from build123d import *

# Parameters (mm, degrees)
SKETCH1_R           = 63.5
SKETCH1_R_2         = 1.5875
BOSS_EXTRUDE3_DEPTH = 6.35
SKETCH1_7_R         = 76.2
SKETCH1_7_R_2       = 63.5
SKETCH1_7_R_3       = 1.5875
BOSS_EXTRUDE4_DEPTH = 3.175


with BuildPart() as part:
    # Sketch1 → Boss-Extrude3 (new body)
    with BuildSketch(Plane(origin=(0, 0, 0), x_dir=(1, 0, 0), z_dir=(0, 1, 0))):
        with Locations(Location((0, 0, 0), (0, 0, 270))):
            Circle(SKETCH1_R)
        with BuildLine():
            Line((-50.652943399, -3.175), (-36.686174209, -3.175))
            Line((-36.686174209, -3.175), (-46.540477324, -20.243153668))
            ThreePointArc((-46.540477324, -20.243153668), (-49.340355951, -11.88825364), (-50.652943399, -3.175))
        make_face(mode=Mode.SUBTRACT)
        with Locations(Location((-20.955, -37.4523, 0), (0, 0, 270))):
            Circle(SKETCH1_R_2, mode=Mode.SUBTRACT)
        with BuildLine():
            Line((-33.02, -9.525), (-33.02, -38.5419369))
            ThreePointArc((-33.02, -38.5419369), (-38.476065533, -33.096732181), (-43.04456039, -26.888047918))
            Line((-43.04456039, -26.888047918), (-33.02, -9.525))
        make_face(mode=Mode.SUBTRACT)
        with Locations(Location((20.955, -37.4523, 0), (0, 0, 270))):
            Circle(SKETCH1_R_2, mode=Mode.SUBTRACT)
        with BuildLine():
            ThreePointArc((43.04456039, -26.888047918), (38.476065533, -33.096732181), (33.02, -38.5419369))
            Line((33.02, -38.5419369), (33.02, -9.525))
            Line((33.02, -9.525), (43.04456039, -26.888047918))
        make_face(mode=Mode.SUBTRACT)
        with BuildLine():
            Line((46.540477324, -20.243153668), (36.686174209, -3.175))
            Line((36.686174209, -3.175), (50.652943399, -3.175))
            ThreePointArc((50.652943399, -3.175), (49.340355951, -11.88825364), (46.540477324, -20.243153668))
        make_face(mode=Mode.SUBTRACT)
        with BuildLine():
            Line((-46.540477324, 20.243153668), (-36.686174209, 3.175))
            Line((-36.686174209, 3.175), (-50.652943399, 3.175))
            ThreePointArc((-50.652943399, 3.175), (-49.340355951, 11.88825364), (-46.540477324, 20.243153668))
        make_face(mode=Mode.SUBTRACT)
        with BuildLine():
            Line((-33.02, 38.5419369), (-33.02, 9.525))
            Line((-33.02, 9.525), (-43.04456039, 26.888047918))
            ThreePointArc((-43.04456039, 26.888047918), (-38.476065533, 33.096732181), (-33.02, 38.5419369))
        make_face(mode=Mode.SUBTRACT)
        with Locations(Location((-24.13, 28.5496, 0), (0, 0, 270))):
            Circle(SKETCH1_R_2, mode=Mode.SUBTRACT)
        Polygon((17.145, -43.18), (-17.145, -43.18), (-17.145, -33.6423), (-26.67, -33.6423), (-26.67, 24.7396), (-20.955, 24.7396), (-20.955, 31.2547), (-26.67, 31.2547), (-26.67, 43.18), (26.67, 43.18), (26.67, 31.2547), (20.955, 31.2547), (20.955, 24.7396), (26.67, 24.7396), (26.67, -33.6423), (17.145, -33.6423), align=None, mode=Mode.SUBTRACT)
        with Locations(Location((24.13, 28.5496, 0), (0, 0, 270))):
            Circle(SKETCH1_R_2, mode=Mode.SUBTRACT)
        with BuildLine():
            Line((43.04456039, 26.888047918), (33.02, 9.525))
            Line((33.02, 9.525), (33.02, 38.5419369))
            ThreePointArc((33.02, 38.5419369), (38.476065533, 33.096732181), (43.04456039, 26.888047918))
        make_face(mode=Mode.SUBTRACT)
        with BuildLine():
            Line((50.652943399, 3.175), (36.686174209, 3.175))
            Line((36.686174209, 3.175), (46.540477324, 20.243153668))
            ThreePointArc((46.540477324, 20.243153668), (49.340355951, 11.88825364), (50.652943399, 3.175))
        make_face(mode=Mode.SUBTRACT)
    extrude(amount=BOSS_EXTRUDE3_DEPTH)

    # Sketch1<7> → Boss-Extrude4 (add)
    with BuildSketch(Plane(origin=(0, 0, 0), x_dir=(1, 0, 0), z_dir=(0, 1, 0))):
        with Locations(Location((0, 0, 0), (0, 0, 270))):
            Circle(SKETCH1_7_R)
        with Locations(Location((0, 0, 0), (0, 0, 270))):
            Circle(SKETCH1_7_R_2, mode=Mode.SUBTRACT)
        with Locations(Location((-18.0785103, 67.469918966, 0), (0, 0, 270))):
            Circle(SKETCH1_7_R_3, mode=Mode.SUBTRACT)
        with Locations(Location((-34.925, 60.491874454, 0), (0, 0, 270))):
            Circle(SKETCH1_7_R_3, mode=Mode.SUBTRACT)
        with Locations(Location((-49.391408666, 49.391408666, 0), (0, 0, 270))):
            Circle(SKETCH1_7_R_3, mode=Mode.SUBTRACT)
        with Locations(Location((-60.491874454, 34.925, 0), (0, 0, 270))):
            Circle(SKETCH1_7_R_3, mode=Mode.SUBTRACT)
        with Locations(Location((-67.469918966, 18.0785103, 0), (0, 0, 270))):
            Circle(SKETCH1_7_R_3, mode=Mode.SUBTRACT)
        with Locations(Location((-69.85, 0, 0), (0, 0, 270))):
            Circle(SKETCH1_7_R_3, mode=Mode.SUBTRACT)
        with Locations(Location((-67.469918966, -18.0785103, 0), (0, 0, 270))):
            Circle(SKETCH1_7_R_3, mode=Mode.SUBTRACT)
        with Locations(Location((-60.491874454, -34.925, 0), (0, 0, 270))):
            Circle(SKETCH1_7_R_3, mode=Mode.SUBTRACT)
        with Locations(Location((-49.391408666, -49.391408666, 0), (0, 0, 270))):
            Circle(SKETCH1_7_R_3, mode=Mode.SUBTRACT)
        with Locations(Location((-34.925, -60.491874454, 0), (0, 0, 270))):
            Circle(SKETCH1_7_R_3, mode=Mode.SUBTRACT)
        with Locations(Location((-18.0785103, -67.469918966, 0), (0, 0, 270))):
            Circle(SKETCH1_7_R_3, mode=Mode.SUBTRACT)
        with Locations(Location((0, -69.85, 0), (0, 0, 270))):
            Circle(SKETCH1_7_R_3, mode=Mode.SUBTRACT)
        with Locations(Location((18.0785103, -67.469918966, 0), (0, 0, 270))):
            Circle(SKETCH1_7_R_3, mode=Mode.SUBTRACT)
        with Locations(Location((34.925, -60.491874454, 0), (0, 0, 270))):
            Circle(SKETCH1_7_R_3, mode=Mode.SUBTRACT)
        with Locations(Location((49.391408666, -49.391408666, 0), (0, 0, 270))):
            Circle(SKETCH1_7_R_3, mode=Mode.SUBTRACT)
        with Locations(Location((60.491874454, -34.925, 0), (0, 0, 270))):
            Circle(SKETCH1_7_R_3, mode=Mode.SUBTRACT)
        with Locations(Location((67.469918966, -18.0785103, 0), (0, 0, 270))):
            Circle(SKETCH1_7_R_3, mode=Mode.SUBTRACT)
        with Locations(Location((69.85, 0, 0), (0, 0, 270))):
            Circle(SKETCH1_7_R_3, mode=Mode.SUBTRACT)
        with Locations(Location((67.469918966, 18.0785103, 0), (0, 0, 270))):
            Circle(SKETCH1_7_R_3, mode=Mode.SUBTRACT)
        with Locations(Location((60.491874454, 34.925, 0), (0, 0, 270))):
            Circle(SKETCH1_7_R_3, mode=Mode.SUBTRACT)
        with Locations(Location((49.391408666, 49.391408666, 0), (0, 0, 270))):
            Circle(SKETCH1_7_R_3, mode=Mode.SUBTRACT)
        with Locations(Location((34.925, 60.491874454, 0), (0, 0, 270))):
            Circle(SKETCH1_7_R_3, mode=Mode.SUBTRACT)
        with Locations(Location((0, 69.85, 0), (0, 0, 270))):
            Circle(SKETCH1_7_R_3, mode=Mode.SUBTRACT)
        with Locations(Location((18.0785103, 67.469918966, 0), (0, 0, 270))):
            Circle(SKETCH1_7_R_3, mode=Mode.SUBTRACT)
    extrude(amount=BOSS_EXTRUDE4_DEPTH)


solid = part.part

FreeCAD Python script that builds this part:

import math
import FreeCAD as App
import Part
import Sketcher
from FreeCAD import Vector
Q = App.Units.Quantity


def add_polygon(sketch, points):
    """Adds a closed chain of lines whose ends are joined by coincident constraints."""
    first, n = sketch.GeometryCount, len(points)
    for a, b in zip(points, points[1:] + points[:1]):
        sketch.addGeometry(Part.LineSegment(App.Vector(*a, 0), App.Vector(*b, 0)), False)
    for i in range(n):
        sketch.addConstraint(Sketcher.Constraint("Coincident", first + i, 2, first + (i + 1) % n, 1))

doc = App.newDocument("Part")
body = doc.addObject("PartDesign::Body", "Body")

sketch1 = body.newObject("Sketcher::SketchObject", "Sketch")
sketch1.AttachmentSupport = (doc.getObject("XZ_Plane"), [""])
sketch1.MapMode = "FlatFace"
sketch1.addGeometry(Part.Circle(Vector(0, 0, 0), Vector(0, 0, 1), 63.5), False)
sketch1.addGeometry(Part.ArcOfCircle(Part.Circle(Vector(0, 0, 0), Vector(0, 0, 1), 50.8), math.radians(-148.01), math.radians(-130.59)), False)
sketch1.addGeometry(Part.LineSegment(Vector(-33, -38.5, 0), Vector(-33, -9.5, 0)), False)
sketch1.addGeometry(Part.LineSegment(Vector(-33, -9.5, 0), Vector(-43, -26.9, 0)), False)
sketch1.addGeometry(Part.ArcOfCircle(Part.Circle(Vector(0, 0, 0), Vector(0, 0, 1), 50.8), math.radians(-176.41), math.radians(-156.49)), False)
sketch1.addGeometry(Part.LineSegment(Vector(-46.5, -20.2, 0), Vector(-36.7, -3.2, 0)), False)
sketch1.addGeometry(Part.LineSegment(Vector(-36.7, -3.2, 0), Vector(-50.7, -3.2, 0)), False)
sketch1.addGeometry(Part.Circle(Vector(-24.1, -28.5, 0), Vector(0, 0, 1), 1.6), False)
sketch1.addGeometry(Part.ArcOfCircle(Part.Circle(Vector(0, 0, 0), Vector(0, 0, 1), 50.8), math.radians(156.49), math.radians(176.41)), False)
sketch1.addGeometry(Part.LineSegment(Vector(-50.7, 3.2, 0), Vector(-36.7, 3.2, 0)), False)
sketch1.addGeometry(Part.LineSegment(Vector(-36.7, 3.2, 0), Vector(-46.5, 20.2, 0)), False)
sketch1.addGeometry(Part.LineSegment(Vector(-43, 26.9, 0), Vector(-33, 9.5, 0)), False)
sketch1.addGeometry(Part.LineSegment(Vector(-33, 9.5, 0), Vector(-33, 38.5, 0)), False)
sketch1.addGeometry(Part.ArcOfCircle(Part.Circle(Vector(0, 0, 0), Vector(0, 0, 1), 50.8), math.radians(130.59), math.radians(148.01)), False)
add_polygon(sketch1, [(17.1, 33.6), (17.1, 43.2), (-17.1, 43.2), (-17.1, 33.6), (-26.7, 33.6), (-26.7, -24.7), (-21, -24.7), (-21, -31.3), (-26.7, -31.3), (-26.7, -43.2), (26.7, -43.2), (26.7, -31.3), (21, -31.3), (21, -24.7), (26.7, -24.7), (26.7, 33.6)])
sketch1.addGeometry(Part.Circle(Vector(-21, 37.5, 0), Vector(0, 0, 1), 1.6), False)
sketch1.addGeometry(Part.Circle(Vector(24.1, -28.5, 0), Vector(0, 0, 1), 1.6), False)
sketch1.addGeometry(Part.ArcOfCircle(Part.Circle(Vector(0, 0, 0), Vector(0, 0, 1), 50.8), math.radians(-49.41), math.radians(-31.99)), False)
sketch1.addGeometry(Part.LineSegment(Vector(43, -26.9, 0), Vector(33, -9.5, 0)), False)
sketch1.addGeometry(Part.LineSegment(Vector(33, -9.5, 0), Vector(33, -38.5, 0)), False)
sketch1.addGeometry(Part.ArcOfCircle(Part.Circle(Vector(0, 0, 0), Vector(0, 0, 1), 50.8), math.radians(-23.51), math.radians(-3.59)), False)
sketch1.addGeometry(Part.LineSegment(Vector(50.7, -3.2, 0), Vector(36.7, -3.2, 0)), False)
sketch1.addGeometry(Part.LineSegment(Vector(36.7, -3.2, 0), Vector(46.5, -20.2, 0)), False)
sketch1.addGeometry(Part.Circle(Vector(21, 37.5, 0), Vector(0, 0, 1), 1.6), False)
sketch1.addGeometry(Part.ArcOfCircle(Part.Circle(Vector(0, 0, 0), Vector(0, 0, 1), 50.8), math.radians(3.59), math.radians(23.51)), False)
sketch1.addGeometry(Part.LineSegment(Vector(46.5, 20.2, 0), Vector(36.7, 3.2, 0)), False)
sketch1.addGeometry(Part.LineSegment(Vector(36.7, 3.2, 0), Vector(50.7, 3.2, 0)), False)
sketch1.addGeometry(Part.LineSegment(Vector(33, 9.5, 0), Vector(43, 26.9, 0)), False)
sketch1.addGeometry(Part.ArcOfCircle(Part.Circle(Vector(0, 0, 0), Vector(0, 0, 1), 50.8), math.radians(31.99), math.radians(49.41)), False)
sketch1.addGeometry(Part.LineSegment(Vector(33, 38.5, 0), Vector(33, 9.5, 0)), False)
sketch1.addConstraint([
    Sketcher.Constraint("Coincident", 1, 2, 2, 1),
    Sketcher.Constraint("Coincident", 2, 2, 3, 1),
    Sketcher.Constraint("Coincident", 3, 2, 1, 1),
    Sketcher.Constraint("Coincident", 4, 2, 5, 1),
    Sketcher.Constraint("Coincident", 5, 2, 6, 1),
    Sketcher.Constraint("Coincident", 6, 2, 4, 1),
    Sketcher.Constraint("Coincident", 8, 2, 9, 1),
    Sketcher.Constraint("Coincident", 9, 2, 10, 1),
    Sketcher.Constraint("Coincident", 10, 2, 8, 1),
    Sketcher.Constraint("Coincident", 11, 2, 12, 1),
    Sketcher.Constraint("Coincident", 12, 2, 13, 1),
    Sketcher.Constraint("Coincident", 13, 2, 11, 1),
    Sketcher.Constraint("Coincident", 32, 2, 33, 1),
    Sketcher.Constraint("Coincident", 33, 2, 34, 1),
    Sketcher.Constraint("Coincident", 34, 2, 32, 1),
    Sketcher.Constraint("Coincident", 35, 2, 36, 1),
    Sketcher.Constraint("Coincident", 36, 2, 37, 1),
    Sketcher.Constraint("Coincident", 37, 2, 35, 1),
    Sketcher.Constraint("Coincident", 39, 2, 40, 1),
    Sketcher.Constraint("Coincident", 40, 2, 41, 1),
    Sketcher.Constraint("Coincident", 41, 2, 39, 1),
    Sketcher.Constraint("Coincident", 42, 2, 43, 1),
    Sketcher.Constraint("Coincident", 43, 2, 44, 1),
    Sketcher.Constraint("Coincident", 44, 2, 42, 1),
    Sketcher.Constraint("Vertical", 2),
    Sketcher.Constraint("Horizontal", 6),
    Sketcher.Constraint("Horizontal", 9),
    Sketcher.Constraint("Vertical", 12),
    Sketcher.Constraint("Vertical", 14),
    Sketcher.Constraint("Horizontal", 15),
    Sketcher.Constraint("Vertical", 16),
    Sketcher.Constraint("Horizontal", 17),
    Sketcher.Constraint("Vertical", 18),
    Sketcher.Constraint("Horizontal", 19),
    Sketcher.Constraint("Vertical", 20),
    Sketcher.Constraint("Horizontal", 21),
    Sketcher.Constraint("Vertical", 22),
    Sketcher.Constraint("Horizontal", 23),
    Sketcher.Constraint("Vertical", 24),
    Sketcher.Constraint("Horizontal", 25),
    Sketcher.Constraint("Vertical", 26),
    Sketcher.Constraint("Horizontal", 27),
    Sketcher.Constraint("Vertical", 28),
    Sketcher.Constraint("Horizontal", 29),
    Sketcher.Constraint("Vertical", 34),
    Sketcher.Constraint("Horizontal", 36),
    Sketcher.Constraint("Horizontal", 41),
    Sketcher.Constraint("Vertical", 44),
    Sketcher.Constraint("Coincident", 0, 3, -1, 1),
    Sketcher.Constraint("Coincident", 1, 3, -1, 1),
    Sketcher.Constraint("Coincident", 4, 3, -1, 1),
    Sketcher.Constraint("Coincident", 8, 3, -1, 1),
    Sketcher.Constraint("Coincident", 13, 3, -1, 1),
    Sketcher.Constraint("Coincident", 32, 3, -1, 1),
    Sketcher.Constraint("Coincident", 35, 3, -1, 1),
    Sketcher.Constraint("Coincident", 39, 3, -1, 1),
    Sketcher.Constraint("Coincident", 43, 3, -1, 1),
    Sketcher.Constraint("Equal", 1, 4),
    Sketcher.Constraint("Equal", 4, 8),
    Sketcher.Constraint("Equal", 8, 13),
    Sketcher.Constraint("Equal", 7, 30),
    Sketcher.Constraint("Equal", 30, 31),
    Sketcher.Constraint("Equal", 13, 32),
    Sketcher.Constraint("Equal", 32, 35),
    Sketcher.Constraint("Equal", 31, 38),
    Sketcher.Constraint("Equal", 35, 39),
    Sketcher.Constraint("Equal", 39, 43),
    Sketcher.Constraint("Symmetric", 11, 2, 33, 2, -1, 1),
    Sketcher.Constraint("Symmetric", 9, 2, 36, 2, -1, 1),
    Sketcher.Constraint("Symmetric", 5, 2, 40, 2, -1, 1),
    Sketcher.Constraint("Symmetric", 2, 2, 44, 2, -1, 1),
    Sketcher.Constraint("Symmetric", 7, 3, 31, 3, -2),
    Sketcher.Constraint("Symmetric", 30, 3, 38, 3, -2),
    Sketcher.Constraint("Symmetric", 21, 2, 24, 2, -2),
    Sketcher.Constraint("Symmetric", 19, 2, 26, 2, -2),
    Sketcher.Constraint("Symmetric", 17, 2, 28, 2, -2),
    Sketcher.Constraint("Symmetric", 2, 2, 33, 2, -2),
    Sketcher.Constraint("Symmetric", 5, 2, 36, 2, -2),
    Sketcher.Constraint("Parallel", 3, 5),
    Sketcher.Constraint("Parallel", 10, 11),
    Sketcher.Constraint("Parallel", 11, 33),
    Sketcher.Constraint("Parallel", 33, 37),
    Sketcher.Constraint("Parallel", 5, 40),
    Sketcher.Constraint("Parallel", 40, 42),
    Sketcher.Constraint("Horizontal", 3, 2, 32, 2),
    Sketcher.Constraint("Vertical", 30, 3, 19, 2),
    Sketcher.Constraint("Vertical", 18, 2, 21, 2),
    Sketcher.Constraint("Equal", 17, 29),
    Sketcher.Constraint("Diameter", 0, Q("5 in")),
    Sketcher.Constraint("Diameter", 7, Q("0.125 in")),
    Sketcher.Constraint("DistanceX", 23, 1, 23, 2, Q("2.1 in")),
    Sketcher.Constraint("Angle", 3, Q("-120 deg")),
    Sketcher.Constraint("DistanceX", 15, 2, 15, 1, Q("1.35 in")),
    Sketcher.Constraint("DistanceX", 1, 2, -1, 1, Q("1.3 in")),
    Sketcher.Constraint("DistanceY", -1, 1, 14, 2, Q("1.7 in")),
    Sketcher.Constraint("DistanceY", 22, 2, -1, 1, Q("1.7 in")),
    Sketcher.Constraint("DistanceY", 2, 2, 8, 2, Q("0.5 in")),
    Sketcher.Constraint("DistanceX", 30, 3, 14, 2, Q("1.5 in")),
    Sketcher.Constraint("DistanceX", 18, 2, 7, 3, Q("0.1 in")),
    Sketcher.Constraint("DistanceY", 2, 2, 5, 2, Q("0.25 in")),
    Sketcher.Constraint("DistanceY", 16, 2, 30, 3, Q("0.15 in")),
    Sketcher.Constraint("DistanceY", 7, 3, 18, 2, Q("0.15 in")),
    Sketcher.Constraint("DistanceY", 14, 1, 14, 2, Q("0.3755 in")),
    Sketcher.Constraint("DistanceY", 18, 2, 18, 1, Q("2.2985 in")),
    Sketcher.Constraint("DistanceY", 20, 2, 20, 1, Q("0.2565 in")),
    Sketcher.Constraint("Radius", 1, 50.752353),
    Sketcher.Constraint("DistanceX", 6, 2, 6, 1, 13.966769),
])
pad1 = body.newObject("PartDesign::Pad", "Pad")
pad1.Profile = sketch1
pad1.Length = Q("0.25 in")
pad1.Reversed = True

sketch2 = body.newObject("Sketcher::SketchObject", "Sketch001")
sketch2.AttachmentSupport = (doc.getObject("XZ_Plane"), [""])
sketch2.MapMode = "FlatFace"
sketch2.addGeometry([
    Part.Circle(Vector(0, 0, 0), Vector(0, 0, 1), 76.2),
    Part.Circle(Vector(-49.4, -49.4, 0), Vector(0, 0, 1), 1.6),
    Part.Circle(Vector(-67.5, -18.1, 0), Vector(0, 0, 1), 1.6),
    Part.Circle(Vector(-60.5, -34.9, 0), Vector(0, 0, 1), 1.6),
    Part.Circle(Vector(-34.9, -60.5, 0), Vector(0, 0, 1), 1.6),
    Part.Circle(Vector(-18.1, -67.5, 0), Vector(0, 0, 1), 1.6),
    Part.Circle(Vector(0, -69.8, 0), Vector(0, 0, 1), 1.6),
    Part.Circle(Vector(-69.8, 0, 0), Vector(0, 0, 1), 1.6),
    Part.Circle(Vector(-67.5, 18.1, 0), Vector(0, 0, 1), 1.6),
    Part.Circle(Vector(-60.5, 34.9, 0), Vector(0, 0, 1), 1.6),
    Part.Circle(Vector(-49.4, 49.4, 0), Vector(0, 0, 1), 1.6),
    Part.Circle(Vector(-34.9, 60.5, 0), Vector(0, 0, 1), 1.6),
    Part.Circle(Vector(-18.1, 67.5, 0), Vector(0, 0, 1), 1.6),
    Part.Circle(Vector(18.1, -67.5, 0), Vector(0, 0, 1), 1.6),
    Part.Circle(Vector(34.9, -60.5, 0), Vector(0, 0, 1), 1.6),
    Part.Circle(Vector(49.4, -49.4, 0), Vector(0, 0, 1), 1.6),
    Part.Circle(Vector(60.5, -34.9, 0), Vector(0, 0, 1), 1.6),
    Part.Circle(Vector(67.5, -18.1, 0), Vector(0, 0, 1), 1.6),
    Part.Circle(Vector(69.8, 0, 0), Vector(0, 0, 1), 1.6),
    Part.Circle(Vector(0, 0, 0), Vector(0, 0, 1), 63.5),
    Part.Circle(Vector(0, 69.8, 0), Vector(0, 0, 1), 1.6),
    Part.Circle(Vector(18.1, 67.5, 0), Vector(0, 0, 1), 1.6),
    Part.Circle(Vector(34.9, 60.5, 0), Vector(0, 0, 1), 1.6),
    Part.Circle(Vector(60.5, 34.9, 0), Vector(0, 0, 1), 1.6),
    Part.Circle(Vector(67.5, 18.1, 0), Vector(0, 0, 1), 1.6),
    Part.Circle(Vector(49.4, 49.4, 0), Vector(0, 0, 1), 1.6),
], False)
sketch2.addConstraint([
    Sketcher.Constraint("Coincident", 0, 3, -1, 1),
    Sketcher.Constraint("Coincident", 19, 3, -1, 1),
    Sketcher.Constraint("Equal", 1, 2),
    Sketcher.Constraint("Equal", 2, 3),
    Sketcher.Constraint("Equal", 3, 4),
    Sketcher.Constraint("Equal", 4, 5),
    Sketcher.Constraint("Equal", 5, 6),
    Sketcher.Constraint("Equal", 6, 7),
    Sketcher.Constraint("Equal", 7, 8),
    Sketcher.Constraint("Equal", 8, 9),
    Sketcher.Constraint("Equal", 9, 10),
    Sketcher.Constraint("Equal", 10, 11),
    Sketcher.Constraint("Equal", 11, 12),
    Sketcher.Constraint("Equal", 12, 13),
    Sketcher.Constraint("Equal", 13, 14),
    Sketcher.Constraint("Equal", 14, 15),
    Sketcher.Constraint("Equal", 15, 16),
    Sketcher.Constraint("Equal", 16, 17),
    Sketcher.Constraint("Equal", 17, 18),
    Sketcher.Constraint("Equal", 18, 20),
    Sketcher.Constraint("Equal", 20, 21),
    Sketcher.Constraint("Equal", 21, 22),
    Sketcher.Constraint("Equal", 22, 23),
    Sketcher.Constraint("Equal", 23, 24),
    Sketcher.Constraint("Equal", 24, 25),
    Sketcher.Constraint("Symmetric", 12, 3, 13, 3, -1, 1),
    Sketcher.Constraint("Symmetric", 11, 3, 14, 3, -1, 1),
    Sketcher.Constraint("Symmetric", 10, 3, 15, 3, -1, 1),
    Sketcher.Constraint("Symmetric", 9, 3, 16, 3, -1, 1),
    Sketcher.Constraint("Symmetric", 8, 3, 17, 3, -1, 1),
    Sketcher.Constraint("Symmetric", 7, 3, 18, 3, -1, 1),
    Sketcher.Constraint("Symmetric", 6, 3, 20, 3, -1, 1),
    Sketcher.Constraint("Symmetric", 5, 3, 21, 3, -1, 1),
    Sketcher.Constraint("Symmetric", 4, 3, 22, 3, -1, 1),
    Sketcher.Constraint("Symmetric", 3, 3, 23, 3, -1, 1),
    Sketcher.Constraint("Symmetric", 2, 3, 24, 3, -1, 1),
    Sketcher.Constraint("Symmetric", 1, 3, 25, 3, -1, 1),
    Sketcher.Constraint("Symmetric", 5, 3, 13, 3, -2),
    Sketcher.Constraint("Symmetric", 4, 3, 14, 3, -2),
    Sketcher.Constraint("Symmetric", 1, 3, 15, 3, -2),
    Sketcher.Constraint("Symmetric", 3, 3, 16, 3, -2),
    Sketcher.Constraint("Symmetric", 2, 3, 17, 3, -2),
    Sketcher.Constraint("PointOnObject", 6, 3, -2),
    Sketcher.Constraint("PointOnObject", 7, 3, -1),
    Sketcher.Constraint("Diameter", 0, Q("6 in")),
    Sketcher.Constraint("Diameter", 19, Q("5 in")),
    Sketcher.Constraint("Diameter", 1, Q("0.125 in")),
    Sketcher.Constraint("DistanceY", 6, 3, -1, 1, Q("2.75 in")),
    Sketcher.Constraint("DistanceX", 7, 3, -1, 1, Q("2.75 in")),
    Sketcher.Constraint("DistanceY", 3, 3, 9, 3, Q("2.75 in")),
    Sketcher.Constraint("DistanceX", 4, 3, 14, 3, Q("2.75 in")),
    Sketcher.Constraint("DistanceY", 1, 3, 2, 3, 31.312898),
    Sketcher.Constraint("DistanceX", 1, 3, 5, 3, 31.312898),
    Sketcher.Constraint("DistanceX", 1, 3, -1, 1, 49.391409),
    Sketcher.Constraint("DistanceY", 1, 3, -1, 1, 49.391409),
    Sketcher.Constraint("DistanceX", 2, 3, -1, 1, 67.469919),
    Sketcher.Constraint("DistanceY", 5, 3, -1, 1, 67.469919),
    Sketcher.Constraint("DistanceX", 3, 3, -1, 1, 60.491874),
    Sketcher.Constraint("DistanceY", 4, 3, -1, 1, 60.491874),
])
pad2 = body.newObject("PartDesign::Pad", "Pad001")
pad2.Profile = sketch2
pad2.Length = Q("0.125 in")
pad2.Reversed = True

doc.recompute()
